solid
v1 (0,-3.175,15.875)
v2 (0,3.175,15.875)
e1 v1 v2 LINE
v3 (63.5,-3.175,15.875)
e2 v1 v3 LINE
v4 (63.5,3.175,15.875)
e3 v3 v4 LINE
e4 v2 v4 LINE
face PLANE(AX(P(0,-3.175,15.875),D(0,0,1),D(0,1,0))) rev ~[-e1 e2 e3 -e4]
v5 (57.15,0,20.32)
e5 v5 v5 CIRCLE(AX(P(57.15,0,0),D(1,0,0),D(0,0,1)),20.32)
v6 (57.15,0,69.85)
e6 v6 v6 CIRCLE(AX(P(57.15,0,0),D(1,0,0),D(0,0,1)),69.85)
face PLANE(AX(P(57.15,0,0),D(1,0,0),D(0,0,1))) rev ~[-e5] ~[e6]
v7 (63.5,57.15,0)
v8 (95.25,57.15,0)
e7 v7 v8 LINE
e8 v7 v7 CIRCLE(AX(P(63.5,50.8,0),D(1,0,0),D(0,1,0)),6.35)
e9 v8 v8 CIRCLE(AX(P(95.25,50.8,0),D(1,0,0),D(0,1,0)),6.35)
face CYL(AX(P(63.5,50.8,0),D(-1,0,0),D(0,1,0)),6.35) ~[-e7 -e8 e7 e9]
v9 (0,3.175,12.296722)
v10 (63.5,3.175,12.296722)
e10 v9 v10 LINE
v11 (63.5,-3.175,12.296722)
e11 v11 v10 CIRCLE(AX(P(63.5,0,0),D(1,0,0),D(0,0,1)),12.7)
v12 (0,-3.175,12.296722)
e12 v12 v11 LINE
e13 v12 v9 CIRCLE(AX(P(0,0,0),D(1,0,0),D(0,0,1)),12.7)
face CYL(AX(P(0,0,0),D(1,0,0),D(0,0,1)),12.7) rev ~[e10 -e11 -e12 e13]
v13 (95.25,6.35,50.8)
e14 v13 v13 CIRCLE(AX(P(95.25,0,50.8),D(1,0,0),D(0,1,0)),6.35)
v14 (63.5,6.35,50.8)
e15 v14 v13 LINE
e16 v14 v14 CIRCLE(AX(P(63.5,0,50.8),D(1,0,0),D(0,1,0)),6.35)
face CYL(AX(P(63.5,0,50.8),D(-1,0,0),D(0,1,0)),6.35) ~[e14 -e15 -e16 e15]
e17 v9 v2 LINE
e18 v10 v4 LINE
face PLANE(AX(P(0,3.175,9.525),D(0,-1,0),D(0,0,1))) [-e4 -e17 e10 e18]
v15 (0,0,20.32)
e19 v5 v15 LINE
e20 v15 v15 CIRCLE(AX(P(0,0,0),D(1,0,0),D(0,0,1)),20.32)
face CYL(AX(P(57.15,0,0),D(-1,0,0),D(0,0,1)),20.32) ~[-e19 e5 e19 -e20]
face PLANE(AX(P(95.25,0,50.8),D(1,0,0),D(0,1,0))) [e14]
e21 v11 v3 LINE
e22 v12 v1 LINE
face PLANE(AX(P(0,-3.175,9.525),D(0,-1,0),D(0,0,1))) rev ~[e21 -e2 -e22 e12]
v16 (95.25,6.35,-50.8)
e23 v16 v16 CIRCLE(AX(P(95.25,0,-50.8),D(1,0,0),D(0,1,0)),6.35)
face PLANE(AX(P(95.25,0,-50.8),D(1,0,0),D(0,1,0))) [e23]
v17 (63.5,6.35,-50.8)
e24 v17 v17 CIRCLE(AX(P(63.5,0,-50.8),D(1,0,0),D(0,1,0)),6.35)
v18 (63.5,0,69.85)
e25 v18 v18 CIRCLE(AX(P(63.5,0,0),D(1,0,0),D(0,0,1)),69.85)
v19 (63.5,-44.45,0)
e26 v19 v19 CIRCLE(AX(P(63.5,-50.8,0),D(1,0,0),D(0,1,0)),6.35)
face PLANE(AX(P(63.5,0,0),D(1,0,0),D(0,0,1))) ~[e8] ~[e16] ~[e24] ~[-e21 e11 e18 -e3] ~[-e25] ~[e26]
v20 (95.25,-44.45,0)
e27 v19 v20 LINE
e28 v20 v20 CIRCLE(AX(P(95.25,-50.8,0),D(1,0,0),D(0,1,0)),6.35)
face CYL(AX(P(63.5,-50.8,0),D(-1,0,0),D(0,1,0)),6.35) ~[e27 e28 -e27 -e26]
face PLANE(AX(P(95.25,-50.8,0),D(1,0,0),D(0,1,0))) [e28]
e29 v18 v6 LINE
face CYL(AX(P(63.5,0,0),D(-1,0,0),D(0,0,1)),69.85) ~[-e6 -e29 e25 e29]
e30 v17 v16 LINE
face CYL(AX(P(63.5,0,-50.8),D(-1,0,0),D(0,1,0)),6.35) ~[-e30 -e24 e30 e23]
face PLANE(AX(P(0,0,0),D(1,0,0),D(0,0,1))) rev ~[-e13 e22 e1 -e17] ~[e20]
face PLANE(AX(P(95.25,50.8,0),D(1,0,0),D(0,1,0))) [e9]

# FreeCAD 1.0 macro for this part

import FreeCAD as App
import Part
import Sketcher
from FreeCAD import Vector
Q = App.Units.Quantity


def add_polygon(sketch, points):
    """Adds a closed chain of lines whose ends are joined by coincident constraints."""
    first, n = sketch.GeometryCount, len(points)
    for a, b in zip(points, points[1:] + points[:1]):
        sketch.addGeometry(Part.LineSegment(App.Vector(*a, 0), App.Vector(*b, 0)), False)
    for i in range(n):
        sketch.addConstraint(Sketcher.Constraint("Coincident", first + i, 2, first + (i + 1) % n, 1))

doc = App.newDocument("Part")
body = doc.addObject("PartDesign::Body", "Body")

# Sketch on XZ plane
sketch1 = doc.addObject("Sketcher::SketchObject", "Sketch")
body.addObject(sketch1)
sketch1.AttachmentSupport = (doc.XZ_Plane, [""])
sketch1.MapMode = "FlatFace"
add_polygon(sketch1, [(0, 20), (0, 13), (64, 13), (64, 70), (57, 70), (57, 20)])  # lines 0-5
sketch1.addConstraint(Sketcher.Constraint("Vertical", 0))
sketch1.addConstraint(Sketcher.Constraint("Horizontal", 1))
sketch1.addConstraint(Sketcher.Constraint("Vertical", 2))
sketch1.addConstraint(Sketcher.Constraint("Horizontal", 3))
sketch1.addConstraint(Sketcher.Constraint("Vertical", 4))
sketch1.addConstraint(Sketcher.Constraint("Horizontal", 5))
sketch1.addConstraint(Sketcher.Constraint("PointOnObject", 0, 2, -2))
sketch1.addConstraint(Sketcher.Constraint("Equal", 5, 2))
sketch1.addConstraint(Sketcher.Constraint("DistanceX", 1, 1, 1, 2, Q("2.5 in")))
sketch1.addConstraint(Sketcher.Constraint("DistanceY", 0, 2, 0, 1, Q("0.3 in")))
sketch1.addConstraint(Sketcher.Constraint("DistanceX", 3, 2, 3, 1, Q("0.25 in")))
sketch1.addConstraint(Sketcher.Constraint("DistanceY", -1, 1, 0, 2, Q("0.5 in")))
revolution = doc.addObject("PartDesign::Revolution", "Revolution")
body.addObject(revolution)
revolution.Profile = sketch1
revolution.ReferenceAxis = (sketch1, ["H_Axis"])
revolution.Angle = 360

# Sketch on YZ plane
sketch2 = doc.addObject("Sketcher::SketchObject", "Sketch001")
body.addObject(sketch2)
sketch2.AttachmentSupport = (doc.YZ_Plane, [""])
sketch2.MapMode = "FlatFace"
add_polygon(sketch2, [(-3, 16), (-3, 10), (3, 10), (3, 16)])  # lines 0-3
sketch2.addConstraint(Sketcher.Constraint("Vertical", 0))
sketch2.addConstraint(Sketcher.Constraint("Horizontal", 1))
sketch2.addConstraint(Sketcher.Constraint("Vertical", 2))
sketch2.addConstraint(Sketcher.Constraint("Horizontal", 3))
sketch2.addConstraint(Sketcher.Constraint("Equal", 3, 0))
sketch2.addConstraint(Sketcher.Constraint("DistanceX", 1, 1, 1, 2, Q("0.25 in")))
sketch2.addConstraint(Sketcher.Constraint("DistanceX", 0, 2, -1, 1, Q("0.125 in")))
sketch2.addConstraint(Sketcher.Constraint("DistanceY", -1, 1, 0, 2, Q("0.375 in")))
pocket1 = doc.addObject("PartDesign::Pocket", "Pocket")
body.addObject(pocket1)
pocket1.Profile = sketch2
pocket1.Type = "ThroughAll"
pocket1.Reversed = True

# Sketch on YZ plane
sketch3 = doc.addObject("Sketcher::SketchObject", "Sketch002")
body.addObject(sketch3)
sketch3.AttachmentSupport = (doc.YZ_Plane, [""])
sketch3.MapMode = "FlatFace"
sketch3.AttachmentOffset = App.Placement(Vector(0, 0, 2.5 * 25.4), App.Rotation())
sketch3.addGeometry(Part.Circle(Vector(0, 51, 0), Vector(0, 0, 1), 6), False)
sketch3.addGeometry(Part.Circle(Vector(-51, 0, 0), Vector(0, 0, 1), 6), False)
sketch3.addGeometry(Part.Circle(Vector(0, -51, 0), Vector(0, 0, 1), 6), False)
sketch3.addGeometry(Part.Circle(Vector(51, 0, 0), Vector(0, 0, 1), 6), False)
sketch3.addConstraint(Sketcher.Constraint("Equal", 0, 1))
sketch3.addConstraint(Sketcher.Constraint("Equal", 1, 2))
sketch3.addConstraint(Sketcher.Constraint("Equal", 2, 3))
sketch3.addConstraint(Sketcher.Constraint("Symmetric", 0, 3, 2, 3, -1, 1))
sketch3.addConstraint(Sketcher.Constraint("Symmetric", 1, 3, 3, 3, -1, 1))
sketch3.addConstraint(Sketcher.Constraint("PointOnObject", 0, 3, -2))
sketch3.addConstraint(Sketcher.Constraint("PointOnObject", 1, 3, -1))
sketch3.addConstraint(Sketcher.Constraint("Diameter", 0, Q("0.5 in")))
sketch3.addConstraint(Sketcher.Constraint("DistanceY", -1, 1, 0, 3, Q("2 in")))
sketch3.addConstraint(Sketcher.Constraint("DistanceX", 1, 3, -1, 1, Q("2 in")))
pad1 = doc.addObject("PartDesign::Pad", "Pad")
body.addObject(pad1)
pad1.Profile = sketch3
pad1.Length = Q("1.25 in")

doc.recompute()
